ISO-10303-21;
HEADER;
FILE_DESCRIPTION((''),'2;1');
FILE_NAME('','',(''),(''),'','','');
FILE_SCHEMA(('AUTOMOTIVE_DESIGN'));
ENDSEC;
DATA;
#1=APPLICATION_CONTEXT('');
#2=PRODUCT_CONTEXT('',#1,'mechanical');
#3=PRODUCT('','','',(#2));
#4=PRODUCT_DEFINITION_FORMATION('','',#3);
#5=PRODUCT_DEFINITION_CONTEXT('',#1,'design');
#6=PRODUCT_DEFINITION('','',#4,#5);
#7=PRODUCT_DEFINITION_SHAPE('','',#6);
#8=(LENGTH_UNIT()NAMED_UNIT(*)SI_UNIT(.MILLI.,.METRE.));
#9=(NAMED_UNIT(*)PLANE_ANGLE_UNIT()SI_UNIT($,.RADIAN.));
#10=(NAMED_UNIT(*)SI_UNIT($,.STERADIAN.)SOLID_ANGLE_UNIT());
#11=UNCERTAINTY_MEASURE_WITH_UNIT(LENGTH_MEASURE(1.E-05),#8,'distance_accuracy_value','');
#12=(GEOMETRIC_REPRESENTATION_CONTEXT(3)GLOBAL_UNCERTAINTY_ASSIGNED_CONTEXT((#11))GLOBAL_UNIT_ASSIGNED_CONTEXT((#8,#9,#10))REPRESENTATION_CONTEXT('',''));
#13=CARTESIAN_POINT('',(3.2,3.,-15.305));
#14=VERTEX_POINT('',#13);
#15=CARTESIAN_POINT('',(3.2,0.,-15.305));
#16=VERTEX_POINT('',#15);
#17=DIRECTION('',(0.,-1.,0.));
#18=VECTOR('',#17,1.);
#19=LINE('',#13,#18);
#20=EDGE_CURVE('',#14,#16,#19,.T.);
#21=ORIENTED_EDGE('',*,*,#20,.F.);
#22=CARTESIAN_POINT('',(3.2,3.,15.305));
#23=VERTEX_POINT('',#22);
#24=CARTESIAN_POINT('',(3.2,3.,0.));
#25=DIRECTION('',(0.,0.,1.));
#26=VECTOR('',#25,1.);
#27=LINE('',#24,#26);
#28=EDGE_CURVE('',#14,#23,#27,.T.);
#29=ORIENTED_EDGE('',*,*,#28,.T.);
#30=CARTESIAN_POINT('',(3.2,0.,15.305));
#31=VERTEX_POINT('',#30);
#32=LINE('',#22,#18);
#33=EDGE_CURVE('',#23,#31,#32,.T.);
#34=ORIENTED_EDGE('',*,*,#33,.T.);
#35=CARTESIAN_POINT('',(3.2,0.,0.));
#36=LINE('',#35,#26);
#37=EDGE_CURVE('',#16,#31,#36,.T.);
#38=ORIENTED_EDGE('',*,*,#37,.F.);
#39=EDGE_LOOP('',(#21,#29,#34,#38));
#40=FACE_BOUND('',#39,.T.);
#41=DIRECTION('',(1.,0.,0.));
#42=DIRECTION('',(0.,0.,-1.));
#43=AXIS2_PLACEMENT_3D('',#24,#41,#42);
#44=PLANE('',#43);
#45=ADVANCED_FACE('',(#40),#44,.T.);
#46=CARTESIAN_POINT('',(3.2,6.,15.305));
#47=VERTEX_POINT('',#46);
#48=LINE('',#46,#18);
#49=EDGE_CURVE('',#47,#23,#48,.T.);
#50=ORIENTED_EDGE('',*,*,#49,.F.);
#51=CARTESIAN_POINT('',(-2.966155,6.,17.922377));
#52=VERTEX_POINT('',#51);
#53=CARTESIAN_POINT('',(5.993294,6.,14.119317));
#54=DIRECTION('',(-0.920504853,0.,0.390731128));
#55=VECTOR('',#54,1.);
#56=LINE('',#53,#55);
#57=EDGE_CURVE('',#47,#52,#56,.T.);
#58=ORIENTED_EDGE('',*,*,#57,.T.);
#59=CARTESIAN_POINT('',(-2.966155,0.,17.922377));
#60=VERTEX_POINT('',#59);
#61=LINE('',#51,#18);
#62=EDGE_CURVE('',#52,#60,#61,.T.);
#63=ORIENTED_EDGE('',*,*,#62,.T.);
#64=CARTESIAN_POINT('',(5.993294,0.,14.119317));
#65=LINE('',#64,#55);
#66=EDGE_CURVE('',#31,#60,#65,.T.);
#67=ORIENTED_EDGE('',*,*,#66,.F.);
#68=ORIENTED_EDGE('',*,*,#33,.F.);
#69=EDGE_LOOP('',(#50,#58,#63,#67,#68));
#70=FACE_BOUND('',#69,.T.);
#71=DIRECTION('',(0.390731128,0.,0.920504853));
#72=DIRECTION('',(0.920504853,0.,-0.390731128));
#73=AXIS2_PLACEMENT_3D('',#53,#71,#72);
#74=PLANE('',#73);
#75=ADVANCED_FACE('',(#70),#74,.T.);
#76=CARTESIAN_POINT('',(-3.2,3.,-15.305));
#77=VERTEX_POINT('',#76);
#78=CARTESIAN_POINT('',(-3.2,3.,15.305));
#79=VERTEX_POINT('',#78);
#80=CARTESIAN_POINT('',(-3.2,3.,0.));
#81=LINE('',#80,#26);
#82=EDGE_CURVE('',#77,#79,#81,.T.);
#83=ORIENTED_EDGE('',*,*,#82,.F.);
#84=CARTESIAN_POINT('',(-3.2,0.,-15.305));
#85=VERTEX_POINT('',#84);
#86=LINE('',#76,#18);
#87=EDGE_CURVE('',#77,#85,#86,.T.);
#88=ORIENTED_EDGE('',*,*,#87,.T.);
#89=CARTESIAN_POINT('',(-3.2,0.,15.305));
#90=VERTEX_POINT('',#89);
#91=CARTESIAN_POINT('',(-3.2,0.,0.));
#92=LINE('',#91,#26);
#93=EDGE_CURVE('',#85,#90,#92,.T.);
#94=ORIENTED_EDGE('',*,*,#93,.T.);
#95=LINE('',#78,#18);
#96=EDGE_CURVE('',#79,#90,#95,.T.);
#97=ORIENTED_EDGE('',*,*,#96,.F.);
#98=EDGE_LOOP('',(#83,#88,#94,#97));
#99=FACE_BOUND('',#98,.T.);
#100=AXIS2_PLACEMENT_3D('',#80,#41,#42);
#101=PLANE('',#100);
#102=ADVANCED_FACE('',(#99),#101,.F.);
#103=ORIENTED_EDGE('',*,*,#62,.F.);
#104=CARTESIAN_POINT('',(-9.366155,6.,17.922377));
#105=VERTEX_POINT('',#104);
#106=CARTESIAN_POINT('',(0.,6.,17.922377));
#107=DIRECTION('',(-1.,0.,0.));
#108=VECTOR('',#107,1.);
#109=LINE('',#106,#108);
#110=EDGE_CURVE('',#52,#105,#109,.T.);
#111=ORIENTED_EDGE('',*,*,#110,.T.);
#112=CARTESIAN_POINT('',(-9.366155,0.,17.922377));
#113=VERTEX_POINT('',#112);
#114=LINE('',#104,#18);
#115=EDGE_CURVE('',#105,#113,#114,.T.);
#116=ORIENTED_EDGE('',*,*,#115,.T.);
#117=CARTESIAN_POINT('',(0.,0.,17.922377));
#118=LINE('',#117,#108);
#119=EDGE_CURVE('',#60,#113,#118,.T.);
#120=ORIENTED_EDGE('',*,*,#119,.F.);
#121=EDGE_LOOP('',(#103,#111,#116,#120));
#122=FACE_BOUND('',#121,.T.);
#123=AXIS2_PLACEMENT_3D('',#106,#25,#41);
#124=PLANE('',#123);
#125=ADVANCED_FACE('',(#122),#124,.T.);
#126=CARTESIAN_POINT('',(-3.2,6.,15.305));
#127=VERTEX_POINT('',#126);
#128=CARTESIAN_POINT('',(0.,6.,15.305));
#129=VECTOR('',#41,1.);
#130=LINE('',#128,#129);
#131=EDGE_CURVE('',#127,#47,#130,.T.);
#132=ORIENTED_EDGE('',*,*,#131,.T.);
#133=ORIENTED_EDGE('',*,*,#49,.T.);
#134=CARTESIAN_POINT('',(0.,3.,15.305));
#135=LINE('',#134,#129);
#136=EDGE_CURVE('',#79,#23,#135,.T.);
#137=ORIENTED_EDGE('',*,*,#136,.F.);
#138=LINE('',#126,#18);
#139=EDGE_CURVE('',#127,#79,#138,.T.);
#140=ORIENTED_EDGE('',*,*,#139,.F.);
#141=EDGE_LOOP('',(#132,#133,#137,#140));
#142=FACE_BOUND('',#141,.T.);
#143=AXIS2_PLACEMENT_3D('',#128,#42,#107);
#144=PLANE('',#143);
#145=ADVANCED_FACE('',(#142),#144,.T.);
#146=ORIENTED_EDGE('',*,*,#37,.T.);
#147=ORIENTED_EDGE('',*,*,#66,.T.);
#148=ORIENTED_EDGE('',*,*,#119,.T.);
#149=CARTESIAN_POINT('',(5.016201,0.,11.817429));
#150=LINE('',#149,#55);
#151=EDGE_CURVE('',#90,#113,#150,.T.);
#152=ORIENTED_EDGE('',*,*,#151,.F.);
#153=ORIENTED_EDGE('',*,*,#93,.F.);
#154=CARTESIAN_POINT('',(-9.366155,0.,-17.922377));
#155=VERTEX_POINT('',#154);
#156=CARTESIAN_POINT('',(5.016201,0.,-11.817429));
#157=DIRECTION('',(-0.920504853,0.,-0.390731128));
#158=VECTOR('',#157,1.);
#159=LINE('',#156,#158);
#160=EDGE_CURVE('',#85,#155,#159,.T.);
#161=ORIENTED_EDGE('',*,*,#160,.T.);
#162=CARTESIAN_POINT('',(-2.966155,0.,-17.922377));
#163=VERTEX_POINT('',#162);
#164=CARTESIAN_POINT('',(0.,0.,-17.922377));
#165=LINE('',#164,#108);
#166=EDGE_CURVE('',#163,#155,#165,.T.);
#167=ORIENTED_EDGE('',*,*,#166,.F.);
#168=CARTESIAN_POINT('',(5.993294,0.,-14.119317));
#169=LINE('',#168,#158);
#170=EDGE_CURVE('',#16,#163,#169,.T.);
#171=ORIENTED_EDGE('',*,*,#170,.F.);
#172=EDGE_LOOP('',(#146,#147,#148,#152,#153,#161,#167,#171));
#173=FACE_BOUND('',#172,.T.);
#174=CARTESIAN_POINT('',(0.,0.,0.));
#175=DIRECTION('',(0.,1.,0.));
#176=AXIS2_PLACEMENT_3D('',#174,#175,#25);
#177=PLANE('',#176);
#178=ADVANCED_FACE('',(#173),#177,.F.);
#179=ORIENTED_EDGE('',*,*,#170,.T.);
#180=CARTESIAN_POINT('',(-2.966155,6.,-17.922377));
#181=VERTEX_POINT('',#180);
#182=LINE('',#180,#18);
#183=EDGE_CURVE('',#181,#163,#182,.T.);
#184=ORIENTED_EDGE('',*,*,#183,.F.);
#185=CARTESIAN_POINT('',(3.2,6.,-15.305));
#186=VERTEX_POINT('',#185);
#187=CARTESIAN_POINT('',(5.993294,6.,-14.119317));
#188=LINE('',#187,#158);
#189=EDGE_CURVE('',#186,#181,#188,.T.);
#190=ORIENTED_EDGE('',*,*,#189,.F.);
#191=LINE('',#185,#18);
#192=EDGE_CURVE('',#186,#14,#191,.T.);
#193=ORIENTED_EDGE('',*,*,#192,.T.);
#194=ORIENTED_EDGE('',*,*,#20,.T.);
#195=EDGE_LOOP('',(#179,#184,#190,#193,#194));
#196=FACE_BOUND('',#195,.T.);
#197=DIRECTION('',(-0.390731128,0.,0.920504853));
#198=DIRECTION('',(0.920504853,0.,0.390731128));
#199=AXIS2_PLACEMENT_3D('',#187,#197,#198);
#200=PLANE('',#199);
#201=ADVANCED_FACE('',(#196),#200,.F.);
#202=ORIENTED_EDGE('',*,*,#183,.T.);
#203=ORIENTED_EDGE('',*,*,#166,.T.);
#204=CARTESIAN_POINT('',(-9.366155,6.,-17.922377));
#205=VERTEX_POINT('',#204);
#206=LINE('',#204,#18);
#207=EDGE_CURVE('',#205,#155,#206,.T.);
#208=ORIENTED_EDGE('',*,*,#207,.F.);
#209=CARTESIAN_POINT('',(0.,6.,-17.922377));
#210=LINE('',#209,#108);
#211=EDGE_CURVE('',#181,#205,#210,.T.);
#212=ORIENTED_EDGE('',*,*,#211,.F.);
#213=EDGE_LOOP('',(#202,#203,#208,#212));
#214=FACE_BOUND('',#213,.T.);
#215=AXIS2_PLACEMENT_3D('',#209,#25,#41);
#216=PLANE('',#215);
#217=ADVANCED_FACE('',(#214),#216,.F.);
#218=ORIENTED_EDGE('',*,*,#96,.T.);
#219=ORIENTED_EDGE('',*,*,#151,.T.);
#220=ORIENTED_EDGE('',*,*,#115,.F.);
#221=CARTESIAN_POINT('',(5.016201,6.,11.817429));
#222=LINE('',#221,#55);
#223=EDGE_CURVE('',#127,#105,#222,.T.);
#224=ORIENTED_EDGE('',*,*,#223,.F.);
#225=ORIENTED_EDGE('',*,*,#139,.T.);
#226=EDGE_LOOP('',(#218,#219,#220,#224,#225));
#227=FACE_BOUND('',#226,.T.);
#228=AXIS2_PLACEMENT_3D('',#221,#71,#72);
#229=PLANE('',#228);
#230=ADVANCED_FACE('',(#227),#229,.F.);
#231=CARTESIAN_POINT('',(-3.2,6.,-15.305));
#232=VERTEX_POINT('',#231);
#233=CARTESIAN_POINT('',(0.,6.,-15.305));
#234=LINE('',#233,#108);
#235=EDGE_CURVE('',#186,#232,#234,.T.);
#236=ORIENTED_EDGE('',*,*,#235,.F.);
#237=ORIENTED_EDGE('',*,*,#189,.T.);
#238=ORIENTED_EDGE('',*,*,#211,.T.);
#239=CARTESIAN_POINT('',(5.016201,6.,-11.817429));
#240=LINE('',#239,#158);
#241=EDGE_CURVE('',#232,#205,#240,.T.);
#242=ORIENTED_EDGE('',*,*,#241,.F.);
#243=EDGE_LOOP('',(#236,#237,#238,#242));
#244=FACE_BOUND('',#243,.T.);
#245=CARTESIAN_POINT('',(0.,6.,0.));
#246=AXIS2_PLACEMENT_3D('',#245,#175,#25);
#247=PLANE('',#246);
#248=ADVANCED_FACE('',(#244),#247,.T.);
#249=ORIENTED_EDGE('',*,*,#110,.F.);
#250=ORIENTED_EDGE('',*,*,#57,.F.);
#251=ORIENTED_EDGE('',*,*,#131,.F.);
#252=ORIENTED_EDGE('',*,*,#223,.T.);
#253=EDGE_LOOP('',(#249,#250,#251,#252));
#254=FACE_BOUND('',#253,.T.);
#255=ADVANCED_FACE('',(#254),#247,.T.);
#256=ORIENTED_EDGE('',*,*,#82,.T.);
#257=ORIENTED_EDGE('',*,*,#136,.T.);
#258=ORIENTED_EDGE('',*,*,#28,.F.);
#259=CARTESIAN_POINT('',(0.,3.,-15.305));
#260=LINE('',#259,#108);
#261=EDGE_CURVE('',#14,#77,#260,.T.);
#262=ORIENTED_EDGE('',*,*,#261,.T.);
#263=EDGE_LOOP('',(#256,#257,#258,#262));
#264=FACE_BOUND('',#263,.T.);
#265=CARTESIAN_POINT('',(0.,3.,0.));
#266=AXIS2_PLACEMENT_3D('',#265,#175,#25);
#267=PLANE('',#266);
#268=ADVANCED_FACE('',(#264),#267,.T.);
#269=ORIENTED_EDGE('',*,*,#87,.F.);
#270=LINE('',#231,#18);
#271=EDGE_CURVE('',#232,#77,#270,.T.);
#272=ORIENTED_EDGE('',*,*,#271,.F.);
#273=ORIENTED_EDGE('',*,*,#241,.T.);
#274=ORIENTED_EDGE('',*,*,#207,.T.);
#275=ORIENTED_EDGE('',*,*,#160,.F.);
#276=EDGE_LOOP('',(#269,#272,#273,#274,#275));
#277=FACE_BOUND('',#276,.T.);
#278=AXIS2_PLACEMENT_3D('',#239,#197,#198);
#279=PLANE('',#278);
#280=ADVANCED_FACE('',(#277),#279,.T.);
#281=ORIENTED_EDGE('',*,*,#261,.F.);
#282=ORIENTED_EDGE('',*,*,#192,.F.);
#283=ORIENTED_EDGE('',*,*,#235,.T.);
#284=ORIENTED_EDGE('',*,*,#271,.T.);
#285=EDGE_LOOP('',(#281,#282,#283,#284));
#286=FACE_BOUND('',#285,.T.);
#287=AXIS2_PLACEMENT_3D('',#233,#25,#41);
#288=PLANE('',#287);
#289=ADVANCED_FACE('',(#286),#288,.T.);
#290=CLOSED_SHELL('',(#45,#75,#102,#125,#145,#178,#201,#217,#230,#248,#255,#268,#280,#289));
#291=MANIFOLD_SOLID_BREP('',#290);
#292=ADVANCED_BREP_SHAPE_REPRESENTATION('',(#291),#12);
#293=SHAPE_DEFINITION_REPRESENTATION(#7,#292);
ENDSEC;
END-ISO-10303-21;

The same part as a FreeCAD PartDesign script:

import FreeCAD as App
import Part
import Sketcher

V = App.Vector
Q = App.Units.Quantity


def add_polygon(sketch, points):
    """Adds a closed chain of lines whose ends are joined by coincident constraints."""
    first, n = sketch.GeometryCount, len(points)
    for a, b in zip(points, points[1:] + points[:1]):
        sketch.addGeometry(Part.LineSegment(App.Vector(*a, 0), App.Vector(*b, 0)), False)
    for i in range(n):
        sketch.addConstraint(Sketcher.Constraint("Coincident", first + i, 2, first + (i + 1) % n, 1))

doc = App.newDocument("Part")
body = doc.addObject("PartDesign::Body", "Body")

# Sketch on XZ plane
sketch1 = doc.addObject("Sketcher::SketchObject", "Sketch")
body.addObject(sketch1)
sketch1.AttachmentSupport = (doc.XZ_Plane, [""])
sketch1.MapMode = "FlatFace"
add_polygon(sketch1, [(-3, -15), (-3, 15), (3, 15), (3, -15)])  # lines 0-3
sketch1.addConstraint([
    Sketcher.Constraint("Vertical", 0),
    Sketcher.Constraint("Horizontal", 1),
    Sketcher.Constraint("Vertical", 2),
    Sketcher.Constraint("Horizontal", 3),
    Sketcher.Constraint("Symmetric", 0, 2, 2, 2, -1, 1),
    Sketcher.Constraint("DistanceX", 1, 1, 1, 2, 6.4),
    Sketcher.Constraint("DistanceY", 0, 1, 0, 2, 30.61),
])
pad1 = doc.addObject("PartDesign::Pad", "Pad")
body.addObject(pad1)
pad1.Profile = sketch1
pad1.Length = 3
pad1.Reversed = True

# Sketch on XZ plane
sketch2 = doc.addObject("Sketcher::SketchObject", "Sketch001")
body.addObject(sketch2)
sketch2.AttachmentSupport = (doc.XZ_Plane, [""])
sketch2.MapMode = "FlatFace"
add_polygon(sketch2, [(-3, 18), (3, 15), (-3, 15), (-9, 18)])  # lines 0-3
add_polygon(sketch2, [(3, -15), (-3, -18), (-9, -18), (-3, -15)])  # lines 4-7
sketch2.addConstraint([
    Sketcher.Constraint("Horizontal", 1),
    Sketcher.Constraint("Horizontal", 3),
    Sketcher.Constraint("Horizontal", 5),
    Sketcher.Constraint("Horizontal", 7),
    Sketcher.Constraint("Symmetric", 0, 2, 6, 2, -1, 1),
    Sketcher.Constraint("Symmetric", 3, 2, 4, 2, -1),
    Sketcher.Constraint("Parallel", 0, 2),
    Sketcher.Constraint("Parallel", 4, 6),
    Sketcher.Constraint("Vertical", 2, 2, 5, 2),
    Sketcher.Constraint("Vertical", 1, 2, 6, 2),
    Sketcher.Constraint("Angle", 0, Q("-23 deg")),
    Sketcher.Constraint("DistanceX", 1, 2, 1, 1, 6.4),
    Sketcher.Constraint("DistanceY", 6, 2, 1, 2, 30.61),
    Sketcher.Constraint("Distance", 0, 6.698666),
])
pad2 = doc.addObject("PartDesign::Pad", "Pad001")
body.addObject(pad2)
pad2.Profile = sketch2
pad2.Length = 6
pad2.Reversed = True

doc.recompute()
